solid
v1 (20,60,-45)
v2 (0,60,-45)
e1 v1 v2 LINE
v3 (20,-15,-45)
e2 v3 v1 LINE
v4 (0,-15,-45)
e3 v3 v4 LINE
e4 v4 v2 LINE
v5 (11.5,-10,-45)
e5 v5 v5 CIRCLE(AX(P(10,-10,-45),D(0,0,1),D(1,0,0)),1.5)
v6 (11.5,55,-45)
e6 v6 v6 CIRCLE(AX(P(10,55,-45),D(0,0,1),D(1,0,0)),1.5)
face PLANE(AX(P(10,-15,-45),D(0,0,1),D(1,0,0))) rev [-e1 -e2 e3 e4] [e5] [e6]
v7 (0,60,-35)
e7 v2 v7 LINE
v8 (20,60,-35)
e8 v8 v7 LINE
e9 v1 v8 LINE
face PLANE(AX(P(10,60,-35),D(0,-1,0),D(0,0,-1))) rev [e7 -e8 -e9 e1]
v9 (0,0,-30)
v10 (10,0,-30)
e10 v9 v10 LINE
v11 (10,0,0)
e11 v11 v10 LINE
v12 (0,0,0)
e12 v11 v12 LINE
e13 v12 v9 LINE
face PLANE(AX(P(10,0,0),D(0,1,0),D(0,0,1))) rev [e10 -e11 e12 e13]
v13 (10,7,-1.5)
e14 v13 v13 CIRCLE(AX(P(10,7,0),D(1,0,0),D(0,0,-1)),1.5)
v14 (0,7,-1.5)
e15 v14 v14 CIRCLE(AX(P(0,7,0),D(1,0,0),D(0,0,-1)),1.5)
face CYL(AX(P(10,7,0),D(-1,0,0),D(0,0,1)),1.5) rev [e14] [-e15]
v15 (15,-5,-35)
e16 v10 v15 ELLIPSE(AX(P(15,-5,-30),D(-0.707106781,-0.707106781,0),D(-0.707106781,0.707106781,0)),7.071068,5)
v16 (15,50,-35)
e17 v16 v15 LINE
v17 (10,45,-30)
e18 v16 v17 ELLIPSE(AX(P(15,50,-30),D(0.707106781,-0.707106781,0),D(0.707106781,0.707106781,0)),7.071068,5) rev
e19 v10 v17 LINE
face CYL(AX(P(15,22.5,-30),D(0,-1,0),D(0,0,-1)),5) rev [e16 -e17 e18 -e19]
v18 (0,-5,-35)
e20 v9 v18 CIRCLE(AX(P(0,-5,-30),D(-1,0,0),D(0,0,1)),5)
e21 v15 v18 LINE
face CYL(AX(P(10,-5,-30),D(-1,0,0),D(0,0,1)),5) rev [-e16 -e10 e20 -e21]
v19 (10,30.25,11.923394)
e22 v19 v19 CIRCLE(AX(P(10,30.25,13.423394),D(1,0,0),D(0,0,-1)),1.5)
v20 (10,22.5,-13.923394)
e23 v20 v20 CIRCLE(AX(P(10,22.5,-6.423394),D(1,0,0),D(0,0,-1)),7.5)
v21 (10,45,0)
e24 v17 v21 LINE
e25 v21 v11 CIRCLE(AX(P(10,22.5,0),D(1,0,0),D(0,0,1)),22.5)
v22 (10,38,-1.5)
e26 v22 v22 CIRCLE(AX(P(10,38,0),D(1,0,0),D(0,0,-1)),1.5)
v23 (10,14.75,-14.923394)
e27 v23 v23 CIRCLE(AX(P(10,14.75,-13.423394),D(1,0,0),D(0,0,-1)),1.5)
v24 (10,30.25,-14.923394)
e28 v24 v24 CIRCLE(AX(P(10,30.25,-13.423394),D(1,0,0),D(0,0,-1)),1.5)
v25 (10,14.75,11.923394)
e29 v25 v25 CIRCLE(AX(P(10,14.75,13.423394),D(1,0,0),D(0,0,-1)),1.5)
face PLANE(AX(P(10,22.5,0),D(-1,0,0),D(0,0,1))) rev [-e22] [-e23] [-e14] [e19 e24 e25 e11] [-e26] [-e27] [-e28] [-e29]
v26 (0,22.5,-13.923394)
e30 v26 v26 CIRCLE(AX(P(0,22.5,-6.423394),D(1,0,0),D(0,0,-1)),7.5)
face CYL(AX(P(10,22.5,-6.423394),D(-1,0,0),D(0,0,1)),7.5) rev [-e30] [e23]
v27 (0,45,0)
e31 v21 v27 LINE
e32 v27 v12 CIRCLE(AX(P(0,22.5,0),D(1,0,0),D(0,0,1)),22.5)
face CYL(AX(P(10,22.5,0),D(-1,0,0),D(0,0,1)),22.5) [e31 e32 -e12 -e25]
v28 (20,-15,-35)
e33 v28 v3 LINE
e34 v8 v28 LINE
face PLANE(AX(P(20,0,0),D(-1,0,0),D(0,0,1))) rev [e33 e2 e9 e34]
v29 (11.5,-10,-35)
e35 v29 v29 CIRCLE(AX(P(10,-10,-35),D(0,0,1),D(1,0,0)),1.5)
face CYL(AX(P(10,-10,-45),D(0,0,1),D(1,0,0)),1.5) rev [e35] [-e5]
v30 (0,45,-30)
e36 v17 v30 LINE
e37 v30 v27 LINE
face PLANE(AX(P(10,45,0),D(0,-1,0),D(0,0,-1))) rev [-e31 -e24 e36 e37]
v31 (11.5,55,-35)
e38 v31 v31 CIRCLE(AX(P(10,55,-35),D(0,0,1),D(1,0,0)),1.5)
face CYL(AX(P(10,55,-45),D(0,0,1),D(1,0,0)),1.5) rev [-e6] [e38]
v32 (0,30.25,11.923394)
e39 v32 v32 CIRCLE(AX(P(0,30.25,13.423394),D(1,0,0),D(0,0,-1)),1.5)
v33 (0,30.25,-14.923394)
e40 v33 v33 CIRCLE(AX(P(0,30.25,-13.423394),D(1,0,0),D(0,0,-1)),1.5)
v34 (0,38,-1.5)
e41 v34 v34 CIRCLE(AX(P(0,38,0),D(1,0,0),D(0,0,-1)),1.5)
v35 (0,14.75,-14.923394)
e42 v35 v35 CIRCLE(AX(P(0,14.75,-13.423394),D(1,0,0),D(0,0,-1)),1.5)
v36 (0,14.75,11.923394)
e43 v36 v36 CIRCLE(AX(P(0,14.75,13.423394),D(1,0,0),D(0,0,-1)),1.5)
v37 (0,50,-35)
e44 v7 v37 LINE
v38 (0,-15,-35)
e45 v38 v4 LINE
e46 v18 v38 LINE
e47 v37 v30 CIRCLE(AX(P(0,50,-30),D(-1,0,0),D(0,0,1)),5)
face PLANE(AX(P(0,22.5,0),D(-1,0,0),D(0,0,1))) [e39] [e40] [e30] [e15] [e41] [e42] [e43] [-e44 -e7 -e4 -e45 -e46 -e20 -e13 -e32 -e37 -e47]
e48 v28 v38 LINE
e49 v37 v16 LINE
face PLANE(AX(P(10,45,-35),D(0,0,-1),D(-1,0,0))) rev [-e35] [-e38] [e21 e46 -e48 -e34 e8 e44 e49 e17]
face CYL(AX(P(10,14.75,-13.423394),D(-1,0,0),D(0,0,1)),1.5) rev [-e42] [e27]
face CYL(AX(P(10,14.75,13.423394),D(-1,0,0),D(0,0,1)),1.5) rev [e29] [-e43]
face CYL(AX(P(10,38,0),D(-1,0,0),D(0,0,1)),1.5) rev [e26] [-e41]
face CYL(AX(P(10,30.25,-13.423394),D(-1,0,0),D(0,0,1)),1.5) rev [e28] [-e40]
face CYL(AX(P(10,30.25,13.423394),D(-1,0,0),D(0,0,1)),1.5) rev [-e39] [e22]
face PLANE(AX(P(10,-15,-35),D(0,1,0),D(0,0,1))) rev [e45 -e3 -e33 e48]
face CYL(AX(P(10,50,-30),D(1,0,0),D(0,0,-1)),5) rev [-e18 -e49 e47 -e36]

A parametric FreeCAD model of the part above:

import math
import FreeCAD as App
import Part
import Sketcher

V = App.Vector
Q = App.Units.Quantity


def edges_at(feature, points):
    """Names of the edges that pass closest to the given points."""
    edges = feature.Shape.Edges
    near = lambda p: min(range(len(edges)), key=lambda i: edges[i].distToShape(Part.Vertex(*p))[0])
    return sorted({f"Edge{near(p) + 1}" for p in points})


def add_polygon(sketch, points):
    """Adds a closed chain of lines whose ends are joined by coincident constraints."""
    first, n = sketch.GeometryCount, len(points)
    for a, b in zip(points, points[1:] + points[:1]):
        sketch.addGeometry(Part.LineSegment(App.Vector(*a, 0), App.Vector(*b, 0)), False)
    for i in range(n):
        sketch.addConstraint(Sketcher.Constraint("Coincident", first + i, 2, first + (i + 1) % n, 1))

doc = App.newDocument("Part")
params = doc.addObject("Spreadsheet::Sheet", "Params")
for row, (alias, value) in enumerate([
    ("sketch1_diameter", "3 mm"),
    ("sketch1_diameter2", "15 mm"),
    ("sketch1_radius", "22.5 mm"),
    ("sketch1_width", "15 mm"),
    ("sketch1_height", "35 mm"),
    ("pad1_length", "10 mm"),
    ("fillet_radius", "5 mm"),
    ("fillet2_radius", "5 mm"),
    ("sketch2_width", "75 mm"),
    ("sketch2_height", "10 mm"),
    ("pad2_length", "10 mm"),
    ("fillet3_radius", "5 mm"),
    ("sketch3_diameter", "3 mm"),
    ("pocket1_length", "10 mm"),
], start=1):
    params.set(f"A{row}", alias)
    params.set(f"B{row}", "=" + value)
    params.setAlias(f"B{row}", alias)

body = doc.addObject("PartDesign::Body", "Body")

sketch1 = body.newObject("Sketcher::SketchObject", "Sketch")
sketch1.AttachmentSupport = (doc.getObject("YZ_Plane"), [""])
sketch1.MapMode = "FlatFace"
sketch1.addGeometry([
    Part.LineSegment(V(0, 0, 0), V(0, -35, 0)),
    Part.LineSegment(V(0, -35, 0), V(-15, -35, 0)),
    Part.LineSegment(V(-15, -35, 0), V(-15, -45, 0)),
    Part.LineSegment(V(-15, -45, 0), V(60, -45, 0)),
    Part.LineSegment(V(60, -45, 0), V(60, -35, 0)),
    Part.LineSegment(V(60, -35, 0), V(45, -35, 0)),
    Part.LineSegment(V(45, -35, 0), V(45, 0, 0)),
    Part.ArcOfCircle(Part.Circle(V(22.5, 0, 0), V(0, 0, 1), 22.5), math.radians(0), math.radians(180)),
    Part.Circle(V(14.75, 13.423394, 0), V(0, 0, 1), 1.5),
    Part.Circle(V(7, 0, 0), V(0, 0, 1), 1.5),
    Part.Circle(V(14.75, -13.423394, 0), V(0, 0, 1), 1.5),
    Part.Circle(V(30.25, 13.423394, 0), V(0, 0, 1), 1.5),
    Part.Circle(V(22.5, -6.423394, 0), V(0, 0, 1), 7.5),
    Part.Circle(V(30.25, -13.423394, 0), V(0, 0, 1), 1.5),
    Part.Circle(V(38, 0, 0), V(0, 0, 1), 1.5),
], False)
sketch1.addConstraint([
    Sketcher.Constraint("Coincident", 0, 2, 1, 1),
    Sketcher.Constraint("Coincident", 1, 2, 2, 1),
    Sketcher.Constraint("Coincident", 2, 2, 3, 1),
    Sketcher.Constraint("Coincident", 3, 2, 4, 1),
    Sketcher.Constraint("Coincident", 4, 2, 5, 1),
    Sketcher.Constraint("Coincident", 5, 2, 6, 1),
    Sketcher.Constraint("Tangent", 6, 2, 7, 1),
    Sketcher.Constraint("Tangent", 7, 2, 0, 1),
    Sketcher.Constraint("Vertical", 0),
    Sketcher.Constraint("Horizontal", 1),
    Sketcher.Constraint("Vertical", 2),
    Sketcher.Constraint("Horizontal", 3),
    Sketcher.Constraint("Vertical", 4),
    Sketcher.Constraint("Horizontal", 5),
    Sketcher.Constraint("Vertical", 6),
    Sketcher.Constraint("Coincident", 7, 2, -1, 1),
    Sketcher.Constraint("Equal", 8, 9),
    Sketcher.Constraint("Equal", 9, 10),
    Sketcher.Constraint("Equal", 10, 11),
    Sketcher.Constraint("Equal", 11, 13),
    Sketcher.Constraint("Equal", 13, 14),
    Sketcher.Constraint("Symmetric", 8, 3, 10, 3, -1),
    Sketcher.Constraint("Symmetric", 11, 3, 13, 3, -1),
    Sketcher.Constraint("PointOnObject", 9, 3, -1),
    Sketcher.Constraint("PointOnObject", 14, 3, -1),
    Sketcher.Constraint("Horizontal", 8, 3, 11, 3),
    Sketcher.Constraint("Horizontal", 1, 2, 4, 2),
    Sketcher.Constraint("Vertical", 7, 3, 12, 3),
    Sketcher.Constraint("Equal", 1, 5),
    Sketcher.Constraint("Diameter", 8, Q("3 mm")),
    Sketcher.Constraint("Diameter", 12, Q("15 mm")),
    Sketcher.Constraint("Radius", 7, Q("22.5 mm")),
    Sketcher.Constraint("DistanceX", 1, 2, 1, 1, Q("15 mm")),
    Sketcher.Constraint("DistanceY", 0, 2, 0, 1, Q("35 mm")),
    Sketcher.Constraint("DistanceY", 2, 2, 2, 1, Q("10 mm")),
    Sketcher.Constraint("DistanceX", -1, 1, 9, 3, Q("7 mm")),
    Sketcher.Constraint("DistanceX", -1, 1, 14, 3, Q("38 mm")),
    Sketcher.Constraint("DistanceY", 10, 3, 12, 3, Q("7 mm")),
    Sketcher.Constraint("DistanceX", 8, 3, 11, 3, Q("15.5 mm")),
    Sketcher.Constraint("DistanceX", -1, 1, 8, 3, Q("14.75 mm")),
    Sketcher.Constraint("DistanceY", -1, 1, 8, 3, Q("13.423394 mm")),
])
sketch1.setExpression("Constraints[29]", "Params.sketch1_diameter")
sketch1.setExpression("Constraints[30]", "Params.sketch1_diameter2")
sketch1.setExpression("Constraints[31]", "Params.sketch1_radius")
sketch1.setExpression("Constraints[32]", "Params.sketch1_width")
sketch1.setExpression("Constraints[33]", "Params.sketch1_height")
pad1 = body.newObject("PartDesign::Pad", "Pad")
pad1.Profile = sketch1
pad1.setExpression("Length", "Params.pad1_length")
doc.recompute()

fillet = body.newObject("PartDesign::Fillet", "Fillet")
fillet.Base = (pad1, edges_at(pad1, [(5, 45, -35)]))
fillet.setExpression("Radius", "Params.fillet_radius")
doc.recompute()

fillet2 = body.newObject("PartDesign::Fillet", "Fillet001")
fillet2.Base = (fillet, edges_at(fillet, [(5, 0, -35)]))
fillet2.setExpression("Radius", "Params.fillet2_radius")

sketch2 = body.newObject("Sketcher::SketchObject", "Sketch001")
sketch2.AttachmentSupport = (doc.getObject("YZ_Plane"), [""])
sketch2.MapMode = "FlatFace"
sketch2.AttachmentOffset = App.Placement(V(0, 0, 10), App.Rotation())
add_polygon(sketch2, [(60, -35), (-15, -35), (-15, -45), (60, -45)])
sketch2.addConstraint([
    Sketcher.Constraint("Horizontal", 0),
    Sketcher.Constraint("Vertical", 1),
    Sketcher.Constraint("Horizontal", 2),
    Sketcher.Constraint("Vertical", 3),
    Sketcher.Constraint("DistanceX", 0, 2, 0, 1, Q("75 mm")),
    Sketcher.Constraint("DistanceY", 1, 2, 1, 1, Q("10 mm")),
    Sketcher.Constraint("DistanceX", 0, 2, -1, 1, Q("15 mm")),
    Sketcher.Constraint("DistanceY", 0, 2, -1, 1, Q("35 mm")),
])
sketch2.setExpression("Constraints[8]", "Params.sketch2_width")
sketch2.setExpression("Constraints[9]", "Params.sketch2_height")
pad2 = body.newObject("PartDesign::Pad", "Pad001")
pad2.Profile = sketch2
pad2.setExpression("Length", "Params.pad2_length")
doc.recompute()

fillet3 = body.newObject("PartDesign::Fillet", "Fillet002")
fillet3.Base = (pad2, edges_at(pad2, [(10, 22.5, -35)]))
fillet3.setExpression("Radius", "Params.fillet3_radius")

sketch3 = body.newObject("Sketcher::SketchObject", "Sketch002")
sketch3.AttachmentSupport = (doc.getObject("XY_Plane"), [""])
sketch3.MapMode = "FlatFace"
sketch3.AttachmentOffset = App.Placement(V(0, 0, -35), App.Rotation())
sketch3.addGeometry([
    Part.Circle(V(10, -10, 0), V(0, 0, 1), 1.5),
    Part.Circle(V(10, 55, 0), V(0, 0, 1), 1.5),
], False)
sketch3.addConstraint([
    Sketcher.Constraint("Equal", 0, 1),
    Sketcher.Constraint("Vertical", 0, 3, 1, 3),
    Sketcher.Constraint("Diameter", 0, Q("3 mm")),
    Sketcher.Constraint("DistanceX", -1, 1, 0, 3, Q("10 mm")),
    Sketcher.Constraint("DistanceY", 0, 3, -1, 1, Q("10 mm")),
    Sketcher.Constraint("DistanceY", -1, 1, 1, 3, Q("55 mm")),
])
sketch3.setExpression("Constraints[2]", "Params.sketch3_diameter")
pocket1 = body.newObject("PartDesign::Pocket", "Pocket")
pocket1.Profile = sketch3
pocket1.setExpression("Length", "Params.pocket1_length")

doc.recompute()
